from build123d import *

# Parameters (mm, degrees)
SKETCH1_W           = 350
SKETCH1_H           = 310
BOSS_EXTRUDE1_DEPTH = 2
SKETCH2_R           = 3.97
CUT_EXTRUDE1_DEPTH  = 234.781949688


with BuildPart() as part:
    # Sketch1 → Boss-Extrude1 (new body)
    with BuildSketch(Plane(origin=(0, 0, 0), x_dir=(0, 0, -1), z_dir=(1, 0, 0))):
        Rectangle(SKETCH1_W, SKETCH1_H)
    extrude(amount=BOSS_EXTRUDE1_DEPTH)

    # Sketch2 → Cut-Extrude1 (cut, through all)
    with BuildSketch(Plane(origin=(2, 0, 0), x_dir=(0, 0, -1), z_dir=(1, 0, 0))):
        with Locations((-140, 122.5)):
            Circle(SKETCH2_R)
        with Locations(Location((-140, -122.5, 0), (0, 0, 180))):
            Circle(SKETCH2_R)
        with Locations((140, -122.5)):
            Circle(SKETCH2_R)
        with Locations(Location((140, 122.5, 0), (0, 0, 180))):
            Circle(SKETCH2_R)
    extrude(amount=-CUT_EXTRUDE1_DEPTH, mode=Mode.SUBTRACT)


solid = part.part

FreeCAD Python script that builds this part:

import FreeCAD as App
import Part
import Sketcher
Q = App.Units.Quantity

doc = App.newDocument("Part")
params = doc.addObject("Spreadsheet::Sheet", "Params")
for row, (alias, value) in enumerate([
    ("sketch1_width", "310 mm"),
    ("sketch1_height", "350 mm"),
    ("pad1_length", "2 mm"),
    ("sketch2_diameter", "7.94 mm"),
], start=1):
    params.set(f"A{row}", alias)
    params.set(f"B{row}", "=" + value)
    params.setAlias(f"B{row}", alias)

body = doc.addObject("PartDesign::Body", "Body")

# Sketch on YZ plane
sketch1 = body.newObject("Sketcher::SketchObject", "Sketch")
sketch1.AttachmentSupport = (doc.getObject("YZ_Plane"), [""])
sketch1.MapMode = "FlatFace"
sketch1.addGeometry([
    Part.LineSegment(App.Vector(155, 175, 0), App.Vector(-155, 175, 0)),
    Part.LineSegment(App.Vector(-155, 175, 0), App.Vector(-155, -175, 0)),
    Part.LineSegment(App.Vector(-155, -175, 0), App.Vector(155, -175, 0)),
    Part.LineSegment(App.Vector(155, -175, 0), App.Vector(155, 175, 0)),
], False)
sketch1.addConstraint([
    Sketcher.Constraint("Coincident", 0, 2, 1, 1),
    Sketcher.Constraint("Coincident", 1, 2, 2, 1),
    Sketcher.Constraint("Coincident", 2, 2, 3, 1),
    Sketcher.Constraint("Coincident", 3, 2, 0, 1),
    Sketcher.Constraint("Horizontal", 0),
    Sketcher.Constraint("Vertical", 1),
    Sketcher.Constraint("Horizontal", 2),
    Sketcher.Constraint("Vertical", 3),
    Sketcher.Constraint("Symmetric", 0, 2, 2, 2, -1, 1),
    Sketcher.Constraint("DistanceX", 0, 2, 0, 1, Q("310 mm")),
    Sketcher.Constraint("DistanceY", 1, 2, 1, 1, Q("350 mm")),
])
sketch1.setExpression("Constraints[9]", "Params.sketch1_width")
sketch1.setExpression("Constraints[10]", "Params.sketch1_height")
pad1 = body.newObject("PartDesign::Pad", "Pad")
pad1.Profile = sketch1
pad1.setExpression("Length", "Params.pad1_length")

# Sketch on YZ plane
sketch2 = body.newObject("Sketcher::SketchObject", "Sketch001")
sketch2.AttachmentSupport = (doc.getObject("YZ_Plane"), [""])
sketch2.MapMode = "FlatFace"
sketch2.AttachmentOffset = App.Placement(App.Vector(0, 0, 2), App.Rotation())
sketch2.addGeometry([
    Part.Circle(App.Vector(122.5, 140, 0), App.Vector(0, 0, 1), 4),
    Part.Circle(App.Vector(-122.5, 140, 0), App.Vector(0, 0, 1), 4),
    Part.Circle(App.Vector(-122.5, -140, 0), App.Vector(0, 0, 1), 4),
    Part.Circle(App.Vector(122.5, -140, 0), App.Vector(0, 0, 1), 4),
], False)
sketch2.addConstraint([
    Sketcher.Constraint("Equal", 0, 1),
    Sketcher.Constraint("Equal", 1, 2),
    Sketcher.Constraint("Equal", 2, 3),
    Sketcher.Constraint("Symmetric", 0, 3, 2, 3, -1, 1),
    Sketcher.Constraint("Symmetric", 1, 3, 3, 3, -1, 1),
    Sketcher.Constraint("Symmetric", 0, 3, 1, 3, -2),
    Sketcher.Constraint("Diameter", 0, Q("7.94 mm")),
    Sketcher.Constraint("DistanceY", -1, 1, 0, 3, Q("140 mm")),
    Sketcher.Constraint("DistanceX", 1, 3, 0, 3, Q("245 mm")),
])
sketch2.setExpression("Constraints[6]", "Params.sketch2_diameter")
pocket1 = body.newObject("PartDesign::Pocket", "Pocket")
pocket1.Profile = sketch2
pocket1.Type = "ThroughAll"

doc.recompute()
